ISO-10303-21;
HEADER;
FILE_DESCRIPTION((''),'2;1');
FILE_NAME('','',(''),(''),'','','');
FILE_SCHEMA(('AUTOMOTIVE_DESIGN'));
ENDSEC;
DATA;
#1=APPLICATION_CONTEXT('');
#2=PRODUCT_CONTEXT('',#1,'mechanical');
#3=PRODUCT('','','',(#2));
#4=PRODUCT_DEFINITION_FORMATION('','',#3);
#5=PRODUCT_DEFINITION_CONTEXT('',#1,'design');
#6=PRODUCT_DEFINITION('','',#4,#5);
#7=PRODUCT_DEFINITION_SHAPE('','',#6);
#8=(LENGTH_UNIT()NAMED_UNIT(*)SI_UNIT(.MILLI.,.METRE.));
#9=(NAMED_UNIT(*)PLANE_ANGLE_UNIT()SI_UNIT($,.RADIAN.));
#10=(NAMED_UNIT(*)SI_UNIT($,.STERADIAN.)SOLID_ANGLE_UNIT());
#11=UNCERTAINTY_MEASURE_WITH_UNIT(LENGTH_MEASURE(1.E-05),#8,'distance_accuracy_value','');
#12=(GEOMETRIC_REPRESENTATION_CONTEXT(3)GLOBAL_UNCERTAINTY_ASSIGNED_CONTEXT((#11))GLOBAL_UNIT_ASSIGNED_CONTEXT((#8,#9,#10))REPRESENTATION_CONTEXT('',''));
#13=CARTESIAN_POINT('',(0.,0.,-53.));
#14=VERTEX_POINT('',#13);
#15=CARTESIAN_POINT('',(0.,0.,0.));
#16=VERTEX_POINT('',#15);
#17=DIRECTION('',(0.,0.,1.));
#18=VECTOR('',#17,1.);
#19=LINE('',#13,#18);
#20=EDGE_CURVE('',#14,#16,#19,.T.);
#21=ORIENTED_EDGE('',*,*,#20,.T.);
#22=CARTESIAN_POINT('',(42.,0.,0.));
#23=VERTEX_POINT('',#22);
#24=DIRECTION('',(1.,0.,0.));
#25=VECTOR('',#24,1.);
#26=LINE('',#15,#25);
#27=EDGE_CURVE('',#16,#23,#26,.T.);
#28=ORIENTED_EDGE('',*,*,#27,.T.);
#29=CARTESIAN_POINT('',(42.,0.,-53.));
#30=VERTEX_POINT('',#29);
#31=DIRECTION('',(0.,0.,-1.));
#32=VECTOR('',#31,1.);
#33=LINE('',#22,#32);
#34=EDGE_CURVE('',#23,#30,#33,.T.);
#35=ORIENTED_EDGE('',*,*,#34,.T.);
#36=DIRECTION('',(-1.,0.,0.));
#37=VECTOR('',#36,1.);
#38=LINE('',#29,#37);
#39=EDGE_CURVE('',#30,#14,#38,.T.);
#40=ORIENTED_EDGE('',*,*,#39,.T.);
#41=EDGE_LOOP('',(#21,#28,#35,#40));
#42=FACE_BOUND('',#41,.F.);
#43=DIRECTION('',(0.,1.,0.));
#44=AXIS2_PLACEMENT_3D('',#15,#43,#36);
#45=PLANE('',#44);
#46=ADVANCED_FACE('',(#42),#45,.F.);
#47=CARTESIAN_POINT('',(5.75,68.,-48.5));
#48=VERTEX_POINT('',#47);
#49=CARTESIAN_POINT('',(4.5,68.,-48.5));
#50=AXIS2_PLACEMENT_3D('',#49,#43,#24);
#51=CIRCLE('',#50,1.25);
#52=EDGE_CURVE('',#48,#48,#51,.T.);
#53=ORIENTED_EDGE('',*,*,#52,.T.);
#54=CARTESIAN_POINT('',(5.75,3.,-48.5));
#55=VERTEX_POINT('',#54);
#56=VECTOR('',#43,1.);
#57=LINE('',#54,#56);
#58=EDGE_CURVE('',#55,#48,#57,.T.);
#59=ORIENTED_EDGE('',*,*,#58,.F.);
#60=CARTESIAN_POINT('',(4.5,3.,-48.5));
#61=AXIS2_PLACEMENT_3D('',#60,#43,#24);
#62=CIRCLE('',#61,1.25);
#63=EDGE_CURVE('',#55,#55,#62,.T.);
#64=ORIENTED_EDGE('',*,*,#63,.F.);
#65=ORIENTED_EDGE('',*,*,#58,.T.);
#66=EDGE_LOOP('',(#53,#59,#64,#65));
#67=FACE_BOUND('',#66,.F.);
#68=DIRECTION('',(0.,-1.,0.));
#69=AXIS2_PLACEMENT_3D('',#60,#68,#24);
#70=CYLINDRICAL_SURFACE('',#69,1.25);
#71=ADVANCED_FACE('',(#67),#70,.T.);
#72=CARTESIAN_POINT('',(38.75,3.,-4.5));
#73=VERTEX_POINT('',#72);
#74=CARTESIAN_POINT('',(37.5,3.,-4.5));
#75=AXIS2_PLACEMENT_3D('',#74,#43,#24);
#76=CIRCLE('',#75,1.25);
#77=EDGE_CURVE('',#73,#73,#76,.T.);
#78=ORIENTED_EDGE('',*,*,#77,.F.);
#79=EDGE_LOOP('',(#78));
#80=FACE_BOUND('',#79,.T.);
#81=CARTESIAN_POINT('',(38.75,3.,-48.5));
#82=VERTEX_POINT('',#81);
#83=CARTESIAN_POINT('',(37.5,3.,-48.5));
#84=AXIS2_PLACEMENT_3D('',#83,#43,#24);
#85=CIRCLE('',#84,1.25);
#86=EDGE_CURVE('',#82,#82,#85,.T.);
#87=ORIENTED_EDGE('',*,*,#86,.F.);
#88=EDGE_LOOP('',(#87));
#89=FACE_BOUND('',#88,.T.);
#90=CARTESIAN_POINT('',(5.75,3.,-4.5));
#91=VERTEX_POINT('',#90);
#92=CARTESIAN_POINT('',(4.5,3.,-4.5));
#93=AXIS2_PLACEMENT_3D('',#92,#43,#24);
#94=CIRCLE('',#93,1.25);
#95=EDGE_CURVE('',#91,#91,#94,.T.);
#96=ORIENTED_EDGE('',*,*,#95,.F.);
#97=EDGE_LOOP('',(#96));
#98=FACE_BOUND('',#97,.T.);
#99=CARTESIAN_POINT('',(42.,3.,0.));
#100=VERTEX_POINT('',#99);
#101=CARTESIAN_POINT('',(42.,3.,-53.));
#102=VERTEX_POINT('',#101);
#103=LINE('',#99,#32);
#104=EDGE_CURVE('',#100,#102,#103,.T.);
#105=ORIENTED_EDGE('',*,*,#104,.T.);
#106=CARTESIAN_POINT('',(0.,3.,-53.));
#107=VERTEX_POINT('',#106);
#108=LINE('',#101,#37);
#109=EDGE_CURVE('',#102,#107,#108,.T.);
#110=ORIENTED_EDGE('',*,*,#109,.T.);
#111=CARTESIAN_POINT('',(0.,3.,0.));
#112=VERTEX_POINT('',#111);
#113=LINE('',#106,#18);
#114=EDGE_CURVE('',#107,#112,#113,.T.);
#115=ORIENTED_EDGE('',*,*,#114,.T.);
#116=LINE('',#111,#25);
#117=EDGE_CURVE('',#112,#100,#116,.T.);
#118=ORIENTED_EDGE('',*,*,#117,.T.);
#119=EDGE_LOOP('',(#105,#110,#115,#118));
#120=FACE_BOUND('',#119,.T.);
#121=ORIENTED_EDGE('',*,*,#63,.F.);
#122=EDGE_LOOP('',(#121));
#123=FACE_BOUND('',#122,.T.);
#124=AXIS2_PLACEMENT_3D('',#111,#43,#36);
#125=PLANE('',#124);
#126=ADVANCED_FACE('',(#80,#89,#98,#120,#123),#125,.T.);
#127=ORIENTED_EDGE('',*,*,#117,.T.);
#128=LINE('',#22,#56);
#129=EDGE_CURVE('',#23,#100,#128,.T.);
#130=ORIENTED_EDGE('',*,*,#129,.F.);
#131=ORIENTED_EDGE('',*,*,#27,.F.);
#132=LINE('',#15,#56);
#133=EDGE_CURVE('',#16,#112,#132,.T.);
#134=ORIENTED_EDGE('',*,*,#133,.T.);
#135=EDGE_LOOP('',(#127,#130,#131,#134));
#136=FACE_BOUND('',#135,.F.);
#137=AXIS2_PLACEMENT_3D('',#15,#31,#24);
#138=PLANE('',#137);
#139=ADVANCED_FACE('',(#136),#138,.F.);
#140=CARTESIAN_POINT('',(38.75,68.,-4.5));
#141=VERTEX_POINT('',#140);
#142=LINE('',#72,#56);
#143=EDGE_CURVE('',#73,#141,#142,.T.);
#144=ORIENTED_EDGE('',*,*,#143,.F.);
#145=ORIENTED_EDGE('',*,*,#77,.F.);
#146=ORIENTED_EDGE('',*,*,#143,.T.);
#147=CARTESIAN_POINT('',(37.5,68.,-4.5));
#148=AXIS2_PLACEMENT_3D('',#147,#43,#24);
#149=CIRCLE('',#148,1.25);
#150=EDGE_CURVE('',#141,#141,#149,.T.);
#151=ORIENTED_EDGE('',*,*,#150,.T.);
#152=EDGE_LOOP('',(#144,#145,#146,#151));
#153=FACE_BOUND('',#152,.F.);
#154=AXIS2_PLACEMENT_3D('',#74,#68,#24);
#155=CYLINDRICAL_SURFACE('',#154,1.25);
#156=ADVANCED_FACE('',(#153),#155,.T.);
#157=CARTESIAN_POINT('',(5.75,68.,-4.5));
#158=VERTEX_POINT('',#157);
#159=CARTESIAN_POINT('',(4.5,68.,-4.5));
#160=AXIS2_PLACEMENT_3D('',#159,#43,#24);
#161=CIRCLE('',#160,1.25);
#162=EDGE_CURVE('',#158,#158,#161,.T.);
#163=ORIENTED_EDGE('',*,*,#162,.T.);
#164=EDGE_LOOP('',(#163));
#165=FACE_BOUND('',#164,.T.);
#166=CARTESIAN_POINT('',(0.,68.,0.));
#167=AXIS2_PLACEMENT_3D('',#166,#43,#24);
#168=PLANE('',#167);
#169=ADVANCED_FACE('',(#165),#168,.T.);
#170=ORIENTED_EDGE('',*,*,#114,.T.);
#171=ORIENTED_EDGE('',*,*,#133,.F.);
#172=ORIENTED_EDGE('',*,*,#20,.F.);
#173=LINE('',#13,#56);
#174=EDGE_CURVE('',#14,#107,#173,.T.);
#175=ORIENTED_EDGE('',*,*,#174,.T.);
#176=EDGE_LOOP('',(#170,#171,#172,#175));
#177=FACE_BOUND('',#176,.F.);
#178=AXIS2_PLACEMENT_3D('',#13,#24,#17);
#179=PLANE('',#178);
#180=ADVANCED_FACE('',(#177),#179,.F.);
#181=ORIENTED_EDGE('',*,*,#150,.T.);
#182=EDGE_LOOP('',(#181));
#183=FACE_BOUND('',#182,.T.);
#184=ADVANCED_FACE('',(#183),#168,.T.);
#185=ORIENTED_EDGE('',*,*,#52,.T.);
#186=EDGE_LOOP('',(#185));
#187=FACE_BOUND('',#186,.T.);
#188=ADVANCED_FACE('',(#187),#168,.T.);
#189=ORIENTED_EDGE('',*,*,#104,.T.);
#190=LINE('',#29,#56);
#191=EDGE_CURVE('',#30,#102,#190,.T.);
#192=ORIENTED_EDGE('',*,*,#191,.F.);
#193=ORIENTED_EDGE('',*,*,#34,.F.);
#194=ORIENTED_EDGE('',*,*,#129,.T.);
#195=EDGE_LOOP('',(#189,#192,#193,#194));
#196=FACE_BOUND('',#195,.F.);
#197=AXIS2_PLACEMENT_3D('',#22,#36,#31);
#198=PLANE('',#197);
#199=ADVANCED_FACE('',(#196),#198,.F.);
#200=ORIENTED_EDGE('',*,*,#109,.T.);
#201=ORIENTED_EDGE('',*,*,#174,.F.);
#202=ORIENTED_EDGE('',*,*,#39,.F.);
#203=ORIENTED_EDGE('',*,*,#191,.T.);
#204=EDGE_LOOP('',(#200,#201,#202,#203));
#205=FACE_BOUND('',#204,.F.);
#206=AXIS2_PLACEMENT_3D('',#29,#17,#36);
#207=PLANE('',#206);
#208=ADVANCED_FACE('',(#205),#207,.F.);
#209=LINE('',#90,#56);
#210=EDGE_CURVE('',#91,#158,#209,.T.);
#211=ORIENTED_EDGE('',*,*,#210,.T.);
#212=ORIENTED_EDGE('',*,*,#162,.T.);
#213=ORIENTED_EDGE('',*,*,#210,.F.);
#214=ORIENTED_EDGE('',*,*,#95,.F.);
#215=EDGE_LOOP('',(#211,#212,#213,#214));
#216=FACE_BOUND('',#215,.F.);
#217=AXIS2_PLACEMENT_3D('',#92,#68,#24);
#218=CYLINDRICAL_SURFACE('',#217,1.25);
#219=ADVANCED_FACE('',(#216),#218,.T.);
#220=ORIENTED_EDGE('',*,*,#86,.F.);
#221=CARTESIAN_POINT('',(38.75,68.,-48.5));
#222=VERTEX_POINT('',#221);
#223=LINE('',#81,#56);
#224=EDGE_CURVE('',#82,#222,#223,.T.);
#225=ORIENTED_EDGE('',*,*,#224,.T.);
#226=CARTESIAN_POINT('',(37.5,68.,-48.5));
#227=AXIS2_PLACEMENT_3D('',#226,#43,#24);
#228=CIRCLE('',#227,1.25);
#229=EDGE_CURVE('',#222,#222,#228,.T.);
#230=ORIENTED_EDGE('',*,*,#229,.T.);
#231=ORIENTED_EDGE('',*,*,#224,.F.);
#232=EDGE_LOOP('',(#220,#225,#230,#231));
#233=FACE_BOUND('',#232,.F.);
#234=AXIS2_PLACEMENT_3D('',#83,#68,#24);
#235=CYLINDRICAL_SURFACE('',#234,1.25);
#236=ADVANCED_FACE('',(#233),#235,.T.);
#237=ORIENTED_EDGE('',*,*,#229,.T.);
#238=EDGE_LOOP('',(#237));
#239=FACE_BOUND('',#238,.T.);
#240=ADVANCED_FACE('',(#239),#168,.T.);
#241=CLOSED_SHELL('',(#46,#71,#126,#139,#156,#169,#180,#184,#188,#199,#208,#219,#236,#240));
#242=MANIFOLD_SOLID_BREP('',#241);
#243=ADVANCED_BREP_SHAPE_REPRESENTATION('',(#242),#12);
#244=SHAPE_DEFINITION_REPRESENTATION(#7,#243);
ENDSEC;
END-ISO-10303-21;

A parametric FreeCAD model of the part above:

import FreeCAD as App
import Part
import Sketcher

V = App.Vector


def add_polygon(sketch, points):
    """Adds a closed chain of lines whose ends are joined by coincident constraints."""
    first, n = sketch.GeometryCount, len(points)
    for a, b in zip(points, points[1:] + points[:1]):
        sketch.addGeometry(Part.LineSegment(App.Vector(*a, 0), App.Vector(*b, 0)), False)
    for i in range(n):
        sketch.addConstraint(Sketcher.Constraint("Coincident", first + i, 2, first + (i + 1) % n, 1))

doc = App.newDocument("Part")
body = doc.addObject("PartDesign::Body", "Body")

# Sketch on XZ plane
sketch1 = body.newObject("Sketcher::SketchObject", "Sketch")
sketch1.AttachmentSupport = (doc.getObject("XZ_Plane"), [""])
sketch1.MapMode = "FlatFace"
add_polygon(sketch1, [(0, -53), (0, 0), (42, 0), (42, -53)])  # lines 0-3
sketch1.addConstraint(Sketcher.Constraint("Vertical", 0))
sketch1.addConstraint(Sketcher.Constraint("Horizontal", 1))
sketch1.addConstraint(Sketcher.Constraint("Vertical", 2))
sketch1.addConstraint(Sketcher.Constraint("Horizontal", 3))
sketch1.addConstraint(Sketcher.Constraint("Coincident", 0, 2, -1, 1))
sketch1.addConstraint(Sketcher.Constraint("DistanceX", 1, 1, 1, 2, 42.0))
sketch1.addConstraint(Sketcher.Constraint("DistanceY", 0, 1, 0, 2, 53.0))
pad1 = body.newObject("PartDesign::Pad", "Pad")
pad1.Profile = sketch1
pad1.Length = 3
pad1.Reversed = True

# Sketch on XZ plane
sketch2 = body.newObject("Sketcher::SketchObject", "Sketch001")
sketch2.AttachmentSupport = (doc.getObject("XZ_Plane"), [""])
sketch2.MapMode = "FlatFace"
sketch2.AttachmentOffset = App.Placement(V(0, 0, -3), App.Rotation())
sketch2.addGeometry(Part.Circle(V(4.5, -4.5, 0), V(0, 0, 1), 1.25), False)
sketch2.addGeometry(Part.Circle(V(4.5, -48.5, 0), V(0, 0, 1), 1.25), False)
sketch2.addGeometry(Part.Circle(V(37.5, -48.5, 0), V(0, 0, 1), 1.25), False)
sketch2.addGeometry(Part.Circle(V(37.5, -4.5, 0), V(0, 0, 1), 1.25), False)
sketch2.addConstraint(Sketcher.Constraint("Equal", 0, 1))
sketch2.addConstraint(Sketcher.Constraint("Equal", 1, 2))
sketch2.addConstraint(Sketcher.Constraint("Equal", 2, 3))
sketch2.addConstraint(Sketcher.Constraint("Horizontal", 1, 3, 2, 3))
sketch2.addConstraint(Sketcher.Constraint("Horizontal", 0, 3, 3, 3))
sketch2.addConstraint(Sketcher.Constraint("Vertical", 0, 3, 1, 3))
sketch2.addConstraint(Sketcher.Constraint("Vertical", 2, 3, 3, 3))
sketch2.addConstraint(Sketcher.Constraint("Diameter", 0, 2.5))
sketch2.addConstraint(Sketcher.Constraint("DistanceY", 1, 3, 0, 3, 44.0))
sketch2.addConstraint(Sketcher.Constraint("DistanceX", 1, 3, 2, 3, 33.0))
sketch2.addConstraint(Sketcher.Constraint("DistanceX", -1, 1, 0, 3, 4.5))
sketch2.addConstraint(Sketcher.Constraint("DistanceY", 0, 3, -1, 1, 4.5))
pad2 = body.newObject("PartDesign::Pad", "Pad001")
pad2.Profile = sketch2
pad2.Length = 65
pad2.Reversed = True

doc.recompute()
